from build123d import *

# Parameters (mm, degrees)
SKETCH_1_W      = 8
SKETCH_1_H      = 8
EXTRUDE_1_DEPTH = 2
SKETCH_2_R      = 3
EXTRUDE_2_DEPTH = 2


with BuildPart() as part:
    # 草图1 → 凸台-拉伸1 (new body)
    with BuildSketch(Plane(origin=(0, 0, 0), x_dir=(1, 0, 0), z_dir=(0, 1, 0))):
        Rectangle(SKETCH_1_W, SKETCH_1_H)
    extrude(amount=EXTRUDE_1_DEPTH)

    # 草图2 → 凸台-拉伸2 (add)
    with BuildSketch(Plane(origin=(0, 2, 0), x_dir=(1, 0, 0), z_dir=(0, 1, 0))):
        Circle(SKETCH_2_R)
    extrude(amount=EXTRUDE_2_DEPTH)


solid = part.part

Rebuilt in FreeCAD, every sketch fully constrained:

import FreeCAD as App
import Part
import Sketcher

V = App.Vector


def add_polygon(sketch, points):
    """Adds a closed chain of lines whose ends are joined by coincident constraints."""
    first, n = sketch.GeometryCount, len(points)
    for a, b in zip(points, points[1:] + points[:1]):
        sketch.addGeometry(Part.LineSegment(App.Vector(*a, 0), App.Vector(*b, 0)), False)
    for i in range(n):
        sketch.addConstraint(Sketcher.Constraint("Coincident", first + i, 2, first + (i + 1) % n, 1))

doc = App.newDocument("Part")
body = doc.addObject("PartDesign::Body", "Body")

sketch1 = body.newObject("Sketcher::SketchObject", "Sketch")
sketch1.AttachmentSupport = (doc.getObject("XZ_Plane"), [""])
sketch1.MapMode = "FlatFace"
add_polygon(sketch1, [(-4, -4), (-4, 4), (4, 4), (4, -4)])
sketch1.addConstraint([
    Sketcher.Constraint("Vertical", 0),
    Sketcher.Constraint("Horizontal", 1),
    Sketcher.Constraint("Vertical", 2),
    Sketcher.Constraint("Horizontal", 3),
    Sketcher.Constraint("Symmetric", 0, 2, 2, 2, -1, 1),
    Sketcher.Constraint("Equal", 3, 0),
    Sketcher.Constraint("DistanceX", 1, 1, 1, 2, 8.0),
])
pad1 = body.newObject("PartDesign::Pad", "Pad")
pad1.Profile = sketch1
pad1.Length = 2
pad1.Reversed = True

sketch2 = body.newObject("Sketcher::SketchObject", "Sketch001")
sketch2.AttachmentSupport = (doc.getObject("XZ_Plane"), [""])
sketch2.MapMode = "FlatFace"
sketch2.AttachmentOffset = App.Placement(V(0, 0, -2), App.Rotation())
sketch2.addGeometry(Part.Circle(V(0, 0, 0), V(0, 0, 1), 3), False)
sketch2.addConstraint([
    Sketcher.Constraint("Coincident", 0, 3, -1, 1),
    Sketcher.Constraint("Diameter", 0, 6.0),
])
pad2 = body.newObject("PartDesign::Pad", "Pad001")
pad2.Profile = sketch2
pad2.Length = 2
pad2.Reversed = True

doc.recompute()
